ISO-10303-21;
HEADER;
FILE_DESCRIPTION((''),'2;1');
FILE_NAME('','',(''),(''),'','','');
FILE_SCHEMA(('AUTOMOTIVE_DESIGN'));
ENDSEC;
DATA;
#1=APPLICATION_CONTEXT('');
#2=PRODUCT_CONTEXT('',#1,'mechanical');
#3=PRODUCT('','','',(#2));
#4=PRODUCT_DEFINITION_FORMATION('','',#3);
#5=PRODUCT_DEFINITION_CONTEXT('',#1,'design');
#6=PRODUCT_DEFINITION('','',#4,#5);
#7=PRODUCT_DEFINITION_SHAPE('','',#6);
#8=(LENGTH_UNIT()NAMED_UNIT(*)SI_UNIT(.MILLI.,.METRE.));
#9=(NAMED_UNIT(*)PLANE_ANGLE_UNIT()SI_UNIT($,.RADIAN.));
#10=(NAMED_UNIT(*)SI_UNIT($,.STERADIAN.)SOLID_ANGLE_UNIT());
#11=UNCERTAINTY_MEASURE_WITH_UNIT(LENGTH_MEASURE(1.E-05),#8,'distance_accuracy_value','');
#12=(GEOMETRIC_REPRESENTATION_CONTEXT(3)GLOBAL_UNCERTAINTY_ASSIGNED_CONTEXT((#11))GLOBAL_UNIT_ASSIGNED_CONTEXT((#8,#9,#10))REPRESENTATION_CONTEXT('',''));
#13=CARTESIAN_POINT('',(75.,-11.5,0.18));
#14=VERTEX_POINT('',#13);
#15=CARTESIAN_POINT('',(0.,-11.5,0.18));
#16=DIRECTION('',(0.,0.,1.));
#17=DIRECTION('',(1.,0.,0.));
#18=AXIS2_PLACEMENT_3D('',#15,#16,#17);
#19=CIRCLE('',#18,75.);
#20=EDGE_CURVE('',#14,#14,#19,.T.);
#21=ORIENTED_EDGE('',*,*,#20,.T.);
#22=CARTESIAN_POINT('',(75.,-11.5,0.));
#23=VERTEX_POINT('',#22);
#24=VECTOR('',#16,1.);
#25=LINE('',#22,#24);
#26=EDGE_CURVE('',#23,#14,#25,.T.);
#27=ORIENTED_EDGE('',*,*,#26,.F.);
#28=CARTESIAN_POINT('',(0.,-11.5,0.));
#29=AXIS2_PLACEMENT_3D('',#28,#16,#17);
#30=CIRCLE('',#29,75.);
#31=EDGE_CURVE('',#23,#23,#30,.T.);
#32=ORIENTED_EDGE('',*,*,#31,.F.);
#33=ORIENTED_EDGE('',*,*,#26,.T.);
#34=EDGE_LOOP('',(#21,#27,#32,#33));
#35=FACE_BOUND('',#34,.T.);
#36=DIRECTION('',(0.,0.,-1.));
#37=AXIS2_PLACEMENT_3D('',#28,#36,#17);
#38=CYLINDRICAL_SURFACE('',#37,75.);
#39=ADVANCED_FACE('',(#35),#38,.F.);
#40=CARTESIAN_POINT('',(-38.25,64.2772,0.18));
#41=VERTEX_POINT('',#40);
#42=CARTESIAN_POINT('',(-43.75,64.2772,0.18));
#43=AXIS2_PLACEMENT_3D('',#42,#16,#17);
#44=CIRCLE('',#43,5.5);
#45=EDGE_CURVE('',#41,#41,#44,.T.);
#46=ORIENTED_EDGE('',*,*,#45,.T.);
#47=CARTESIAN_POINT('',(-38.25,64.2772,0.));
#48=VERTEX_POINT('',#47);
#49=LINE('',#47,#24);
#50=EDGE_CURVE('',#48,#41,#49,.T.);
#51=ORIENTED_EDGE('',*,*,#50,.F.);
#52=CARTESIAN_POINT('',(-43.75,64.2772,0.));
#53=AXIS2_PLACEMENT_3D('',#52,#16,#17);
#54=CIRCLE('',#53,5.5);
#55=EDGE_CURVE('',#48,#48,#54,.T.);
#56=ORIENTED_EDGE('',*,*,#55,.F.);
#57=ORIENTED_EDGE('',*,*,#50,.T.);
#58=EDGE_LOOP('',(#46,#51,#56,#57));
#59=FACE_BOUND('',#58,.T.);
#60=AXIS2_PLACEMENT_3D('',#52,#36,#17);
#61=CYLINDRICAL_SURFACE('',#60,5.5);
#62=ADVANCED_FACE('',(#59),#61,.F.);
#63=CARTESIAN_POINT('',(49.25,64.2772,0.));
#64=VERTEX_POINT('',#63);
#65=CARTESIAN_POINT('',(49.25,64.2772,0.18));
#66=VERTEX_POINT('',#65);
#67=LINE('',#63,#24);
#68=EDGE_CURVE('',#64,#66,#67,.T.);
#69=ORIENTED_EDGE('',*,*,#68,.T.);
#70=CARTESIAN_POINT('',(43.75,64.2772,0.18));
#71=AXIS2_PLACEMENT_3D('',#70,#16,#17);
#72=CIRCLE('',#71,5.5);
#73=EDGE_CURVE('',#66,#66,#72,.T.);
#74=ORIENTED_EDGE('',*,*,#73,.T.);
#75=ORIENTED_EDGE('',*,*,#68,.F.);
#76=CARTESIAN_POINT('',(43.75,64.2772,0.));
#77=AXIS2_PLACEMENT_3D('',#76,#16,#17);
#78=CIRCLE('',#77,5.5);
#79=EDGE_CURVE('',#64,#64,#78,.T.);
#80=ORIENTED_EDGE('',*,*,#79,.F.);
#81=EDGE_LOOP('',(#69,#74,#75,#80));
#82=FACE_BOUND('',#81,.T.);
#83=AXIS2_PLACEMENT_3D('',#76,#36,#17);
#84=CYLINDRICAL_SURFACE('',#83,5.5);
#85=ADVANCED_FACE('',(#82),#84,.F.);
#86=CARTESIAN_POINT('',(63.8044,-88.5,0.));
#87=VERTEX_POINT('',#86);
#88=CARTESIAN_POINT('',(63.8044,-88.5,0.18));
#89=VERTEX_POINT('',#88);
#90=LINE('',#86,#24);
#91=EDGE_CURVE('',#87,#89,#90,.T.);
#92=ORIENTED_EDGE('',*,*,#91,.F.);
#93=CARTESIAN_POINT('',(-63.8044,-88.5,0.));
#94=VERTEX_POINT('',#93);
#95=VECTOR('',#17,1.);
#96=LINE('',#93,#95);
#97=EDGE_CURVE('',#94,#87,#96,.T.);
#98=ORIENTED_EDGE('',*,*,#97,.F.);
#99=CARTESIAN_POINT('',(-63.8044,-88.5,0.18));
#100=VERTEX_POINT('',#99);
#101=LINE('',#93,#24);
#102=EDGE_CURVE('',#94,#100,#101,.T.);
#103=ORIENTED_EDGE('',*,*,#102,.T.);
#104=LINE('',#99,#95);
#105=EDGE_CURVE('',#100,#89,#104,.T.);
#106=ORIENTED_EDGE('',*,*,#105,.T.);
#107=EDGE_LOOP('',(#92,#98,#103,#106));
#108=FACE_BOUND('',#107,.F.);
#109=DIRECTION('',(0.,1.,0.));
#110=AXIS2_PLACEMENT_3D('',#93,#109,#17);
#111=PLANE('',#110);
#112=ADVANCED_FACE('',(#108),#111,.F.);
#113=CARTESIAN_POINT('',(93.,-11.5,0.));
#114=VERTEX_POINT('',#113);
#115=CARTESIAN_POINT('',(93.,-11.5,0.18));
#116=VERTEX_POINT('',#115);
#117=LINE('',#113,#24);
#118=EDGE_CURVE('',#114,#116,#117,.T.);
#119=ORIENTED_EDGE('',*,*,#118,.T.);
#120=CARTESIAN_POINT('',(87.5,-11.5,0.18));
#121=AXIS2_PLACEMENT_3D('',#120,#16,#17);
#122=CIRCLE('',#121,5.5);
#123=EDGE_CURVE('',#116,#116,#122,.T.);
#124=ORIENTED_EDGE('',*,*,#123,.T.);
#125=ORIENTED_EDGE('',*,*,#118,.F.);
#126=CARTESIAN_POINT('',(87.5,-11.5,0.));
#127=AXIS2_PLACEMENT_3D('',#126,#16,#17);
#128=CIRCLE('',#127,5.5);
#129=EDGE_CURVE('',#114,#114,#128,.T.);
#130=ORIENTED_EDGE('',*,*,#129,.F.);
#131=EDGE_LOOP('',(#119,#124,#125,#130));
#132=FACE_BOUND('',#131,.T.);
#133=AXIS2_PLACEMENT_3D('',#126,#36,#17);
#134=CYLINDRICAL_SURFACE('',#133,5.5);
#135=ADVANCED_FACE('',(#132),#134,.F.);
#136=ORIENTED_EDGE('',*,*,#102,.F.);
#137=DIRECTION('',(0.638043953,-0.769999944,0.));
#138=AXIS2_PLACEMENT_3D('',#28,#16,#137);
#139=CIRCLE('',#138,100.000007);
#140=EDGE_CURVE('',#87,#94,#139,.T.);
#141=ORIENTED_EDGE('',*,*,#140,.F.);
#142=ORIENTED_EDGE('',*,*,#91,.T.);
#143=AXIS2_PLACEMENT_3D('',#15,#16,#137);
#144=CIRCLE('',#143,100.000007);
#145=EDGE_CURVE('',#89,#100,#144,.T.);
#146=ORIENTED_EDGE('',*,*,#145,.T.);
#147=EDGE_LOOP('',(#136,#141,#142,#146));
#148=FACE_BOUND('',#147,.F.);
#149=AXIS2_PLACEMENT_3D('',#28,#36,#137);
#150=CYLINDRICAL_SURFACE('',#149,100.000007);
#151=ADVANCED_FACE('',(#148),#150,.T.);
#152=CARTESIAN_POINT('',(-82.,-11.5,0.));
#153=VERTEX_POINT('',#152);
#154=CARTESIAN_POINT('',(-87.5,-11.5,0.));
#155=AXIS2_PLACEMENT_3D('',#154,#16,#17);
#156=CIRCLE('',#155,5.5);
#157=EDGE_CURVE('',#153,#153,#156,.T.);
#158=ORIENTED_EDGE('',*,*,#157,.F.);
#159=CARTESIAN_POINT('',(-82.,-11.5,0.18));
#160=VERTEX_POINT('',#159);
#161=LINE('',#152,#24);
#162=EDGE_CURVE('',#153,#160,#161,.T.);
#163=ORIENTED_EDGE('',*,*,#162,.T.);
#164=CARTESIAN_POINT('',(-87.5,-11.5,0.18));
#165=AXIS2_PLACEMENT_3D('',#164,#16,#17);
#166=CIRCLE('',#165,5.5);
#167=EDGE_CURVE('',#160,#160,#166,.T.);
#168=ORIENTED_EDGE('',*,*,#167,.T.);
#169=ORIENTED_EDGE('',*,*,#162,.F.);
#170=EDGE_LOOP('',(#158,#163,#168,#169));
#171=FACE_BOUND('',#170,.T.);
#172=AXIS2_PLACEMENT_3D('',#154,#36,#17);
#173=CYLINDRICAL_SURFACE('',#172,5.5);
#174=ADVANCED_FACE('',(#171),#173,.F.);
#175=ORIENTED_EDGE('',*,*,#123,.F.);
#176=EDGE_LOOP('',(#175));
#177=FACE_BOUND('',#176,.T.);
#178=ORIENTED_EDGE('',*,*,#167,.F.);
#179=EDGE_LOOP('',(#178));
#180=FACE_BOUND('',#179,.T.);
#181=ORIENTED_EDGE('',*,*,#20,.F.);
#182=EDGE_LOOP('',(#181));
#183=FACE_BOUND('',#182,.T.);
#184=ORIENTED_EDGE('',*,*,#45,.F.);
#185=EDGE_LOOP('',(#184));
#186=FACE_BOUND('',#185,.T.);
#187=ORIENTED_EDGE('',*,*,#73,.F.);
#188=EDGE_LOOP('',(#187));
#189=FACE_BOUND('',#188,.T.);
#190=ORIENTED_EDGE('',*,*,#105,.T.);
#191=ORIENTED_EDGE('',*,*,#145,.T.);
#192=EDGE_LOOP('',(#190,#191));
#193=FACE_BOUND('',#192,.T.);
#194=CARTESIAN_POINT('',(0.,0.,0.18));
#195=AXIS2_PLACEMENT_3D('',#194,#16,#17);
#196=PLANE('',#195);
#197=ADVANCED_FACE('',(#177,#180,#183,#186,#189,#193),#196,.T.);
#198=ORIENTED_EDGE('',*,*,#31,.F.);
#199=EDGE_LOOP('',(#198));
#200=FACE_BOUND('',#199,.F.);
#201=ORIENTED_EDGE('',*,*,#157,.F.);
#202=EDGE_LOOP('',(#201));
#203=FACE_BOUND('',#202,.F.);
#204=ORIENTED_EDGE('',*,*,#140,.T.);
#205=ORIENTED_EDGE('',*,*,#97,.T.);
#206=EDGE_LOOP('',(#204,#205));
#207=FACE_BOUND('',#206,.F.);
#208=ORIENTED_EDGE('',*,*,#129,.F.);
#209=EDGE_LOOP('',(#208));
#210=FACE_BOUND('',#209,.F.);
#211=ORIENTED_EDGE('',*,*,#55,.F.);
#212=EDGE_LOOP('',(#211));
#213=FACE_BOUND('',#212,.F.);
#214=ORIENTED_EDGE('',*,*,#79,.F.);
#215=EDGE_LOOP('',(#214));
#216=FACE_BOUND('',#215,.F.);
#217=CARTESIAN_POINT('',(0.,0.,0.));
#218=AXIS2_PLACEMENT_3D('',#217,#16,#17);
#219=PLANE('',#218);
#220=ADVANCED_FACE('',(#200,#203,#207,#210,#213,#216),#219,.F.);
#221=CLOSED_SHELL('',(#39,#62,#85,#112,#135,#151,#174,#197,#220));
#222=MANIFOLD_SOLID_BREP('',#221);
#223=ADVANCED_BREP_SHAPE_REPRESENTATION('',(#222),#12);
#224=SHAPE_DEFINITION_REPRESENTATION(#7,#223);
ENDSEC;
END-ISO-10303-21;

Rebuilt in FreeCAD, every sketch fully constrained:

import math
import FreeCAD as App
import Part
import Sketcher

doc = App.newDocument("Part")
body = doc.addObject("PartDesign::Body", "Body")

# Sketch on XY plane
sketch1 = body.newObject("Sketcher::SketchObject", "Sketch")
sketch1.AttachmentSupport = (doc.getObject("XY_Plane"), [""])
sketch1.MapMode = "FlatFace"
sketch1.addGeometry([
    Part.ArcOfCircle(Part.Circle(App.Vector(0, -12, 0), App.Vector(0, 0, 1), 100), math.radians(-50), math.radians(230)),  # 0
    Part.LineSegment(App.Vector(-64, -88, 0), App.Vector(64, -88, 0)),  # 1
    Part.Circle(App.Vector(-88, -12, 0), App.Vector(0, 0, 1), 6),  # 2
    Part.Circle(App.Vector(0, -12, 0), App.Vector(0, 0, 1), 75),  # 3
    Part.Circle(App.Vector(88, -12, 0), App.Vector(0, 0, 1), 6),  # 4
    Part.Circle(App.Vector(-44, 64, 0), App.Vector(0, 0, 1), 6),  # 5
    Part.Circle(App.Vector(44, 64, 0), App.Vector(0, 0, 1), 6),  # 6
], False)
sketch1.addConstraint([
    Sketcher.Constraint("Coincident", 0, 1, 1, 2),
    Sketcher.Constraint("Coincident", 1, 1, 0, 2),
    Sketcher.Constraint("Horizontal", 1),
    Sketcher.Constraint("Coincident", 3, 3, 0, 3),
    Sketcher.Constraint("Equal", 2, 4),
    Sketcher.Constraint("Equal", 4, 5),
    Sketcher.Constraint("Equal", 5, 6),
    Sketcher.Constraint("Symmetric", 2, 3, 4, 3, -2),
    Sketcher.Constraint("Symmetric", 5, 3, 6, 3, -2),
    Sketcher.Constraint("PointOnObject", 0, 3, -2),
    Sketcher.Constraint("Horizontal", 0, 3, 2, 3),
    Sketcher.Constraint("Diameter", 2, 11.0),
    Sketcher.Constraint("Diameter", 3, 150.0),
    Sketcher.Constraint("Radius", 0, 100.0),
    Sketcher.Constraint("DistanceX", 2, 3, 4, 3, 175.0),
    Sketcher.Constraint("DistanceY", 0, 1, 4, 3, 77.0),
    Sketcher.Constraint("DistanceY", 0, 3, -1, 1, 11.5),
    Sketcher.Constraint("DistanceX", 5, 3, 6, 3, 87.5),
    Sketcher.Constraint("DistanceY", -1, 1, 5, 3, 64.2772),
])
pad1 = body.newObject("PartDesign::Pad", "Pad")
pad1.Profile = sketch1
pad1.Length = 0.18

doc.recompute()
